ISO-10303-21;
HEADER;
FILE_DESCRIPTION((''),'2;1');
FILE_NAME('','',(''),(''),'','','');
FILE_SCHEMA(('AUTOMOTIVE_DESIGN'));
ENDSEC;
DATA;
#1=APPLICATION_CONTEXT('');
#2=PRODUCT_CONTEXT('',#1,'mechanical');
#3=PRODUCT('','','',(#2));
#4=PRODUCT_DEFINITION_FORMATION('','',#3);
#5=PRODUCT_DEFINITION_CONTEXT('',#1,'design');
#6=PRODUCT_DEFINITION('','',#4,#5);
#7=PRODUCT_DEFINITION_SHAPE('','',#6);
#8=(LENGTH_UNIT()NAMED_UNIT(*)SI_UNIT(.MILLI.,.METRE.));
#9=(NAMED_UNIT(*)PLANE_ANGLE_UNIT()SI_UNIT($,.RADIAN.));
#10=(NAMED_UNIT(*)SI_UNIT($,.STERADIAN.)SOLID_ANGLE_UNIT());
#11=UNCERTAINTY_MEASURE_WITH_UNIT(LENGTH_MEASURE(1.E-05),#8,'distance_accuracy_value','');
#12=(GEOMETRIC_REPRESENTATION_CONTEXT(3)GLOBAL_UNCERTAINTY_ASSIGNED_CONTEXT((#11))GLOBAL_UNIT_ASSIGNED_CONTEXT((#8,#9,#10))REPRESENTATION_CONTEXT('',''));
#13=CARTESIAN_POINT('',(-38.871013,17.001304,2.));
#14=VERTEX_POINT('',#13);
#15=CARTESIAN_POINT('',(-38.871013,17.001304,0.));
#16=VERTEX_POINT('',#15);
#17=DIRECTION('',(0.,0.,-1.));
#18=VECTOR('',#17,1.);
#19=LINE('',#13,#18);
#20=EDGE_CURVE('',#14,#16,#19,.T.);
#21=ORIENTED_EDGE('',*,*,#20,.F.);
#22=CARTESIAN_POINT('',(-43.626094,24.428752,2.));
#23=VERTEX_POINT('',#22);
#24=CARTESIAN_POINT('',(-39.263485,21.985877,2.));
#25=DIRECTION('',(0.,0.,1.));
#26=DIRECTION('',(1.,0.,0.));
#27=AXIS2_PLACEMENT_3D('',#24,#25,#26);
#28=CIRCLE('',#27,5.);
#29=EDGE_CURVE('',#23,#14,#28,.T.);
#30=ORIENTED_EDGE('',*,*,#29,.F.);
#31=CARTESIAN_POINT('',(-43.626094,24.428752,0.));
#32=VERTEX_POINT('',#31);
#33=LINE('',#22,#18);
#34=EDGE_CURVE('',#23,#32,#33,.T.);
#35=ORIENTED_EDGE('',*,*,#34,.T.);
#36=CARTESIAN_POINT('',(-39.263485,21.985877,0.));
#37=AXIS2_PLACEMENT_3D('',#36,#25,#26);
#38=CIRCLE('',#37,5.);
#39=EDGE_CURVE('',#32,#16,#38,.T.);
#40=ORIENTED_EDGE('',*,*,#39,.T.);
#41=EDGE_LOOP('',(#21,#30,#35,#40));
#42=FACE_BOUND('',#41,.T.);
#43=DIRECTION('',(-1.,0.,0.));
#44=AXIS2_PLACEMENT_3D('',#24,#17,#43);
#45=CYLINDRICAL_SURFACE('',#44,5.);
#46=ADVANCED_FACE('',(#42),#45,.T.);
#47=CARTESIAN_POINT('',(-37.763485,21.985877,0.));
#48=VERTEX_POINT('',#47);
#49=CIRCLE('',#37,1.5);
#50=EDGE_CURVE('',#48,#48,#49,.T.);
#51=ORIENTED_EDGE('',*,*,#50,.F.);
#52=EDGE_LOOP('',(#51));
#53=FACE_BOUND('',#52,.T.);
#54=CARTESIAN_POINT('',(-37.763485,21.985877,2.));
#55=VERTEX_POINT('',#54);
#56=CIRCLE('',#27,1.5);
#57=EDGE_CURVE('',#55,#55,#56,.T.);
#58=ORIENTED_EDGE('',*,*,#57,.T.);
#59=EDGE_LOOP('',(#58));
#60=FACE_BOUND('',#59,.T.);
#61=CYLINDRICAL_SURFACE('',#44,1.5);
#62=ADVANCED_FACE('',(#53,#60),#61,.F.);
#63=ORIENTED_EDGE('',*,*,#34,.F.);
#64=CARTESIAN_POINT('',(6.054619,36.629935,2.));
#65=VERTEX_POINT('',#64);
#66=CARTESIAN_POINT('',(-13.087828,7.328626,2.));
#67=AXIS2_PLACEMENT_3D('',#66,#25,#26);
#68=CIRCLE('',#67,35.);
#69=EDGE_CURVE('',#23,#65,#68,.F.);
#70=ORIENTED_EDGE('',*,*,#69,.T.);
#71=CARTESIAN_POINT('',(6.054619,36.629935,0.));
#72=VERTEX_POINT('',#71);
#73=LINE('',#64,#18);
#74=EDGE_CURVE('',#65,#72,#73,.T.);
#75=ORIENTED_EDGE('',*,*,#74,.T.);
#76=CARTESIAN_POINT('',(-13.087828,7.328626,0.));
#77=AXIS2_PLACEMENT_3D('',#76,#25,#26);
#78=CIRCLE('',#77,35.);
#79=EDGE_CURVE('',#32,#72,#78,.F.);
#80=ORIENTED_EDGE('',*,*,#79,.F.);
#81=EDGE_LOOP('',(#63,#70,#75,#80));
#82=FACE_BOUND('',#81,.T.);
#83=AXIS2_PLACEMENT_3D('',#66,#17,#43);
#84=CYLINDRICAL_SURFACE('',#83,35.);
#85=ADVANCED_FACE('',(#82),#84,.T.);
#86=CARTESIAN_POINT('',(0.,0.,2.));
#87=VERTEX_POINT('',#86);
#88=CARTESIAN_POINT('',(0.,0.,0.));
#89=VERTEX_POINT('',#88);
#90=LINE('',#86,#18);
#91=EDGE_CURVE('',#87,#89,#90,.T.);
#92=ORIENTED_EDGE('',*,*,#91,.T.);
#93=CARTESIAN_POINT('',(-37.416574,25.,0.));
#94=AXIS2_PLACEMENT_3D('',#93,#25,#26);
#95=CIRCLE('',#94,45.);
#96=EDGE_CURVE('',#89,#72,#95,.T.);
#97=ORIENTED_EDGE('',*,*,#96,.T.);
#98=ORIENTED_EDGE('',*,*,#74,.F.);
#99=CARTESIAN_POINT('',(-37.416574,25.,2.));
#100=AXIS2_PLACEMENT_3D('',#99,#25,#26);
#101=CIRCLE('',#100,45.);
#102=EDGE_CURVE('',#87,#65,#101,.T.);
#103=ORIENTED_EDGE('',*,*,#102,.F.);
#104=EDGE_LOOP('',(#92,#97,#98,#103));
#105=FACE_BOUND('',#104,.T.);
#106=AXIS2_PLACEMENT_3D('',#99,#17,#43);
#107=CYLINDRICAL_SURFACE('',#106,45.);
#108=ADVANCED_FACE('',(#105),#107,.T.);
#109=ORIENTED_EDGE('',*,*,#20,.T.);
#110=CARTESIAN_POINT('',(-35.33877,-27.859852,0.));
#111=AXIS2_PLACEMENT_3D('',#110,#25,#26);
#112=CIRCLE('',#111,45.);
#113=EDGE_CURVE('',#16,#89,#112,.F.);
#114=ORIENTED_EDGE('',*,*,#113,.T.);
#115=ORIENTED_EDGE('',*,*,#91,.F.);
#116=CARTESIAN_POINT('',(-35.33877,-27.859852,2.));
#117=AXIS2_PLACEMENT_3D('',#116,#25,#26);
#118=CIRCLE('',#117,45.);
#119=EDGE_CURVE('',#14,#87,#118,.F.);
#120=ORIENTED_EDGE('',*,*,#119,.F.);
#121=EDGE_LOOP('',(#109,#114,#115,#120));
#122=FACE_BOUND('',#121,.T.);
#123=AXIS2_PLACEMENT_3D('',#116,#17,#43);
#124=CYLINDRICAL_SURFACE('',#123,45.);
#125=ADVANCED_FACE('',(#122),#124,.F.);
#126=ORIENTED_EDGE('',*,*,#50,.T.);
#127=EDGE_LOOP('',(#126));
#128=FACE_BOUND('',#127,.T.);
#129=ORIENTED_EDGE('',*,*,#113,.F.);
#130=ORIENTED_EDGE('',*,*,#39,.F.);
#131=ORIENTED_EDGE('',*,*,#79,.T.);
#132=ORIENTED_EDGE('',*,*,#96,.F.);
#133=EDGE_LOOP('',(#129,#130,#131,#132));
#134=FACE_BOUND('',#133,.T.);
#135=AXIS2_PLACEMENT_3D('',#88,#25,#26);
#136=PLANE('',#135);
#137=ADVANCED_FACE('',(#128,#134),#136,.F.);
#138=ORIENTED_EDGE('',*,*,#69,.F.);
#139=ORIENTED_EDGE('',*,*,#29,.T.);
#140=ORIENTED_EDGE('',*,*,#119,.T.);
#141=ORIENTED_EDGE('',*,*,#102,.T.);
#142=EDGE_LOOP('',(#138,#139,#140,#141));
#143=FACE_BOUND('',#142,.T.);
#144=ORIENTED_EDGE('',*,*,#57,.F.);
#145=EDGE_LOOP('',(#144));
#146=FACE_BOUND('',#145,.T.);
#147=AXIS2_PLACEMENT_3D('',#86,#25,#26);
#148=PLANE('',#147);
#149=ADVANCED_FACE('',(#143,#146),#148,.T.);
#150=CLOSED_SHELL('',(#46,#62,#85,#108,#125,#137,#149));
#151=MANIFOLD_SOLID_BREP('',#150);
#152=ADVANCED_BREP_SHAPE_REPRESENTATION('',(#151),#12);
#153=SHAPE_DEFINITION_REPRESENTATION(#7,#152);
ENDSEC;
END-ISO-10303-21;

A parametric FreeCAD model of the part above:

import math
import FreeCAD as App
import Part
import Sketcher
from FreeCAD import Vector
Q = App.Units.Quantity

doc = App.newDocument("Part")
body = doc.addObject("PartDesign::Body", "Body")

sketch1 = body.newObject("Sketcher::SketchObject", "Sketch")
sketch1.AttachmentSupport = (doc.getObject("XY_Plane"), [""])
sketch1.MapMode = "FlatFace"
sketch1.addGeometry(Part.ArcOfCircle(Part.Circle(Vector(-35.33877, -27.859852, 0), Vector(0, 0, 1), 45), math.radians(38.251011), math.radians(94.502023)), False)
sketch1.addGeometry(Part.ArcOfCircle(Part.Circle(Vector(-37.416574, 25, 0), Vector(0, 0, 1), 45), math.radians(-33.748989), math.radians(14.977695)), False)
sketch1.addGeometry(Part.ArcOfCircle(Part.Circle(Vector(-13.087828, 7.328626, 0), Vector(0, 0, 1), 35), math.radians(56.843549), math.radians(150.753034)), False)
sketch1.addGeometry(Part.ArcOfCircle(Part.Circle(Vector(-39.263485, 21.985877, 0), Vector(0, 0, 1), 5), math.radians(150.753034), math.radians(274.502023)), False)
sketch1.addGeometry(Part.Circle(Vector(-39.263485, 21.985877, 0), Vector(0, 0, 1), 1.5), False)
sketch1.addConstraint(Sketcher.Constraint("Coincident", 0, 1, 1, 1))
sketch1.addConstraint(Sketcher.Constraint("Coincident", 1, 2, 2, 1))
sketch1.addConstraint(Sketcher.Constraint("Tangent", 2, 2, 3, 1))
sketch1.addConstraint(Sketcher.Constraint("Tangent", 3, 2, 0, 2))
sketch1.addConstraint(Sketcher.Constraint("Coincident", 0, 1, -1, 1))
sketch1.addConstraint(Sketcher.Constraint("Coincident", 4, 3, 3, 3))
sketch1.addConstraint(Sketcher.Constraint("Equal", 0, 1))
sketch1.addConstraint(Sketcher.Constraint("Diameter", 4, Q("3 mm")))
sketch1.addConstraint(Sketcher.Constraint("Radius", 0, Q("45 mm")))
sketch1.addConstraint(Sketcher.Constraint("Radius", 2, Q("35 mm")))
sketch1.addConstraint(Sketcher.Constraint("Radius", 3, Q("5 mm")))
sketch1.addConstraint(Sketcher.Constraint("DistanceY", -1, 1, 1, 3, Q("25 mm")))
sketch1.addConstraint(Sketcher.Constraint("DistanceX", 0, 3, -1, 1, Q("35.33877 mm")))
sketch1.addConstraint(Sketcher.Constraint("DistanceX", 2, 3, -1, 1, Q("13.087828 mm")))
sketch1.addConstraint(Sketcher.Constraint("DistanceX", -1, 1, 1, 2, Q("6.054619 mm")))
pad1 = body.newObject("PartDesign::Pad", "Pad")
pad1.Profile = sketch1
pad1.Length = 2

doc.recompute()
